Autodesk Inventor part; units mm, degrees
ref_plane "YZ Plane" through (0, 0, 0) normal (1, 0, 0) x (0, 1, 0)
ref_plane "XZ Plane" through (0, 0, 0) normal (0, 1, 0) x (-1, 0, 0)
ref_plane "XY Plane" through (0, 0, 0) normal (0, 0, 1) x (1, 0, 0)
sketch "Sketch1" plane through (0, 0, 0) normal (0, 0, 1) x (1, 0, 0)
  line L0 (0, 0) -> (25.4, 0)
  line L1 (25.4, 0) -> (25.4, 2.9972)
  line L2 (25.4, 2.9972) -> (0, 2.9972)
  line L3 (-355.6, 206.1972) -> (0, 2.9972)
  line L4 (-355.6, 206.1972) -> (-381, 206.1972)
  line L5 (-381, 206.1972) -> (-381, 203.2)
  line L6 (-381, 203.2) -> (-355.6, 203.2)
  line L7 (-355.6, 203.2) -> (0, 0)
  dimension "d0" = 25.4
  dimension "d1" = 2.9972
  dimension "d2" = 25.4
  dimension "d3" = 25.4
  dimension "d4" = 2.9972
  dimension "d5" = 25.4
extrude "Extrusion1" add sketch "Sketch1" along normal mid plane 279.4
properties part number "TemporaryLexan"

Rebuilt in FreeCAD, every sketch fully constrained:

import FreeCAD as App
import Part
import Sketcher

V = App.Vector
Q = App.Units.Quantity


def add_polygon(sketch, points):
    """Adds a closed chain of lines whose ends are joined by coincident constraints."""
    first, n = sketch.GeometryCount, len(points)
    for a, b in zip(points, points[1:] + points[:1]):
        sketch.addGeometry(Part.LineSegment(App.Vector(*a, 0), App.Vector(*b, 0)), False)
    for i in range(n):
        sketch.addConstraint(Sketcher.Constraint("Coincident", first + i, 2, first + (i + 1) % n, 1))

doc = App.newDocument("Part")
body = doc.addObject("PartDesign::Body", "Body")

sketch1 = body.newObject("Sketcher::SketchObject", "Sketch")
sketch1.AttachmentSupport = (doc.getObject("XY_Plane"), [""])
sketch1.MapMode = "FlatFace"
add_polygon(sketch1, [(-355.6, 203.2), (0, 0), (25.4, 0), (25.4, 2.9972), (0, 2.9972), (-355.6, 206.1972), (-381, 206.1972), (-381, 203.2)])
sketch1.addConstraint(Sketcher.Constraint("Horizontal", 1))
sketch1.addConstraint(Sketcher.Constraint("Vertical", 2))
sketch1.addConstraint(Sketcher.Constraint("Horizontal", 3))
sketch1.addConstraint(Sketcher.Constraint("Horizontal", 5))
sketch1.addConstraint(Sketcher.Constraint("Vertical", 6))
sketch1.addConstraint(Sketcher.Constraint("Horizontal", 7))
sketch1.addConstraint(Sketcher.Constraint("Coincident", 0, 2, -1, 1))
sketch1.addConstraint(Sketcher.Constraint("PointOnObject", 3, 2, -2))
sketch1.addConstraint(Sketcher.Constraint("Parallel", 0, 4))
sketch1.addConstraint(Sketcher.Constraint("Vertical", 4, 2, 7, 2))
sketch1.addConstraint(Sketcher.Constraint("Equal", 3, 5))
sketch1.addConstraint(Sketcher.Constraint("DistanceX", 1, 1, 1, 2, Q("1 in")))
sketch1.addConstraint(Sketcher.Constraint("DistanceY", 2, 1, 2, 2, Q("0.118 in")))
sketch1.addConstraint(Sketcher.Constraint("DistanceX", 4, 2, -1, 1, Q("14 in")))
sketch1.addConstraint(Sketcher.Constraint("DistanceY", -1, 1, 6, 2, Q("8 in")))
pad1 = body.newObject("PartDesign::Pad", "Pad")
pad1.Profile = sketch1
pad1.Length = Q("11 in")
pad1.Midplane = True

doc.recompute()
